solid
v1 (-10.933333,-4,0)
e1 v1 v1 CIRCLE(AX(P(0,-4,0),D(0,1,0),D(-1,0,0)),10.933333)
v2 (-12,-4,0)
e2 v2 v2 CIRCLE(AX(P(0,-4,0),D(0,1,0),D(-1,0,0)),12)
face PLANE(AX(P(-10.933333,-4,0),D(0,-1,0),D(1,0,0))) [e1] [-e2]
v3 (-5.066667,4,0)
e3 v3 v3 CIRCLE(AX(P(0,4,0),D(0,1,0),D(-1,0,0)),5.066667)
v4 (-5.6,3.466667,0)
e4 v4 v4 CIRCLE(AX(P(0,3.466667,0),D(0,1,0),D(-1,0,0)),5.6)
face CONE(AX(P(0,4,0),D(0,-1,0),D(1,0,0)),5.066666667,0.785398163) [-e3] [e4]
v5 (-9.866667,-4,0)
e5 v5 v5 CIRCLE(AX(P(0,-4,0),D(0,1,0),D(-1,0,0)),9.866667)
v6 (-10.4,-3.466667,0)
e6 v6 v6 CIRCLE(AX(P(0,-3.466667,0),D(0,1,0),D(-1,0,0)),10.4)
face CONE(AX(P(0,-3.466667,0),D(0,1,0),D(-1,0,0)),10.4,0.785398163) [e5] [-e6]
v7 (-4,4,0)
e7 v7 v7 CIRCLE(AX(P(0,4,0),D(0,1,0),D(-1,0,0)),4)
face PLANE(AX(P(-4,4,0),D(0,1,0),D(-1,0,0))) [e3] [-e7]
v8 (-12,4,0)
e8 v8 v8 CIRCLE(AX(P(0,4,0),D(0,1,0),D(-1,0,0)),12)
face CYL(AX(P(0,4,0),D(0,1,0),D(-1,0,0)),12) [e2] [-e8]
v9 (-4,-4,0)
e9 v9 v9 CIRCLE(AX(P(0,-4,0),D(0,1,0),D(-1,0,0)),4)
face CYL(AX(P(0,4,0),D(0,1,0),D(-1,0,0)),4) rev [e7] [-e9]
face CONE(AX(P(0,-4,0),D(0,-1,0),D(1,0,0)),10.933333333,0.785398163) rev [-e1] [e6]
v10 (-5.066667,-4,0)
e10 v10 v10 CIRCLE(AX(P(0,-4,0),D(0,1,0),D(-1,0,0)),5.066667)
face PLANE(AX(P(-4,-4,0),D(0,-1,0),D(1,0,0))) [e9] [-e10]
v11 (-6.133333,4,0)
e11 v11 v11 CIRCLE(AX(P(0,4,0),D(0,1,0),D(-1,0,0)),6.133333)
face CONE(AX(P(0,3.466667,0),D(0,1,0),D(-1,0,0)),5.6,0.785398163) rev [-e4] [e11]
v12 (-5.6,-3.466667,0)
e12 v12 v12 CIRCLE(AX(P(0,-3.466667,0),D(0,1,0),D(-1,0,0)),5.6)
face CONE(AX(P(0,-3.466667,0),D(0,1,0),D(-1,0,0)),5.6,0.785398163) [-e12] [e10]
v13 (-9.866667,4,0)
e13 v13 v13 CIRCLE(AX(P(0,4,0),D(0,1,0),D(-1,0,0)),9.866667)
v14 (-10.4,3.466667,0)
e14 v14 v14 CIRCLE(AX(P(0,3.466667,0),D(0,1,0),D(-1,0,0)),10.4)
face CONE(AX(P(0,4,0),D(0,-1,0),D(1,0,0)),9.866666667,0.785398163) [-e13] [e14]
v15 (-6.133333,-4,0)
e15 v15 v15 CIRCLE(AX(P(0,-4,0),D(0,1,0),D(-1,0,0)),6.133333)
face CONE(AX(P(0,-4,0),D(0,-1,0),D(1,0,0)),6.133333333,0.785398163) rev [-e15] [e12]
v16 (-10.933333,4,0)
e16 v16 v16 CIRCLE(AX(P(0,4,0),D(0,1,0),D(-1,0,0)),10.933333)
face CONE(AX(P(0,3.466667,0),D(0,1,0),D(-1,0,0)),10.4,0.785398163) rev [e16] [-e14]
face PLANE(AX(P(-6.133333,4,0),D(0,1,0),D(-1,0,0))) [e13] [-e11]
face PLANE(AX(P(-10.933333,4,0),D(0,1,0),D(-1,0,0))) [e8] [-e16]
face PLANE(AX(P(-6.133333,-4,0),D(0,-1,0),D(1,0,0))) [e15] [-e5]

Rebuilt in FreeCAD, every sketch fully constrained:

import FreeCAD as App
import Part
import Sketcher
from FreeCAD import Vector


def add_polygon(sketch, points):
    """Adds a closed chain of lines whose ends are joined by coincident constraints."""
    first, n = sketch.GeometryCount, len(points)
    for a, b in zip(points, points[1:] + points[:1]):
        sketch.addGeometry(Part.LineSegment(App.Vector(*a, 0), App.Vector(*b, 0)), False)
    for i in range(n):
        sketch.addConstraint(Sketcher.Constraint("Coincident", first + i, 2, first + (i + 1) % n, 1))

doc = App.newDocument("Part")
params = doc.addObject("Spreadsheet::Sheet", "Params")
for row, (alias, value) in enumerate([
    ("sketch1_height", "8 mm"),
    ("revolution_angle", "360 deg"),
], start=1):
    params.set(f"A{row}", alias)
    params.set(f"B{row}", "=" + value)
    params.setAlias(f"B{row}", alias)

body = doc.addObject("PartDesign::Body", "Body")

sketch1 = body.newObject("Sketcher::SketchObject", "Sketch")
sketch1.AttachmentSupport = (doc.getObject("XY_Plane"), [""])
sketch1.MapMode = "FlatFace"
add_polygon(sketch1, [(-4, 4), (-5.1, 4), (-5.6, 3.5), (-6.1, 4), (-9.9, 4), (-10.4, 3.5), (-10.9, 4), (-12, 4), (-12, -4), (-10.9, -4), (-10.4, -3.5), (-9.9, -4), (-6.1, -4), (-5.6, -3.5), (-5.1, -4), (-4, -4)])
sketch1.addConstraint(Sketcher.Constraint("Horizontal", 0))
sketch1.addConstraint(Sketcher.Constraint("Horizontal", 3))
sketch1.addConstraint(Sketcher.Constraint("Horizontal", 6))
sketch1.addConstraint(Sketcher.Constraint("Vertical", 7))
sketch1.addConstraint(Sketcher.Constraint("Horizontal", 8))
sketch1.addConstraint(Sketcher.Constraint("Horizontal", 11))
sketch1.addConstraint(Sketcher.Constraint("Horizontal", 14))
sketch1.addConstraint(Sketcher.Constraint("Vertical", 15))
sketch1.addConstraint(Sketcher.Constraint("Symmetric", 5, 2, 8, 2, -1))
sketch1.addConstraint(Sketcher.Constraint("Symmetric", 4, 2, 9, 2, -1))
sketch1.addConstraint(Sketcher.Constraint("Symmetric", 3, 2, 10, 2, -1))
sketch1.addConstraint(Sketcher.Constraint("Symmetric", 1, 2, 12, 2, -1))
sketch1.addConstraint(Sketcher.Constraint("Symmetric", 0, 2, 13, 2, -1))
sketch1.addConstraint(Sketcher.Constraint("Perpendicular", 1, 2))
sketch1.addConstraint(Sketcher.Constraint("Perpendicular", 2, 4))
sketch1.addConstraint(Sketcher.Constraint("Perpendicular", 4, 5))
sketch1.addConstraint(Sketcher.Constraint("Perpendicular", 5, 9))
sketch1.addConstraint(Sketcher.Constraint("Perpendicular", 10, 12))
sketch1.addConstraint(Sketcher.Constraint("Horizontal", 0, 2, 2, 2))
sketch1.addConstraint(Sketcher.Constraint("Horizontal", 1, 2, 4, 2))
sketch1.addConstraint(Sketcher.Constraint("Horizontal", 3, 2, 5, 2))
sketch1.addConstraint(Sketcher.Constraint("Equal", 0, 6))
sketch1.addConstraint(Sketcher.Constraint("DistanceY", 7, 2, 7, 1, 8.0))
sketch1.addConstraint(Sketcher.Constraint("DistanceX", 6, 2, -1, 1, 12.0))
sketch1.addConstraint(Sketcher.Constraint("DistanceX", 14, 2, -1, 1, 4.0))
sketch1.addConstraint(Sketcher.Constraint("DistanceX", 1, 2, -1, 1, 5.6))
sketch1.addConstraint(Sketcher.Constraint("DistanceX", 0, 2, 0, 1, 1.066667))
sketch1.setExpression("Constraints[38]", "Params.sketch1_height")
revolution = body.newObject("PartDesign::Revolution", "Revolution")
revolution.Profile = sketch1
revolution.ReferenceAxis = (sketch1, ["V_Axis"])
revolution.setExpression("Angle", "Params.revolution_angle")

doc.recompute()
